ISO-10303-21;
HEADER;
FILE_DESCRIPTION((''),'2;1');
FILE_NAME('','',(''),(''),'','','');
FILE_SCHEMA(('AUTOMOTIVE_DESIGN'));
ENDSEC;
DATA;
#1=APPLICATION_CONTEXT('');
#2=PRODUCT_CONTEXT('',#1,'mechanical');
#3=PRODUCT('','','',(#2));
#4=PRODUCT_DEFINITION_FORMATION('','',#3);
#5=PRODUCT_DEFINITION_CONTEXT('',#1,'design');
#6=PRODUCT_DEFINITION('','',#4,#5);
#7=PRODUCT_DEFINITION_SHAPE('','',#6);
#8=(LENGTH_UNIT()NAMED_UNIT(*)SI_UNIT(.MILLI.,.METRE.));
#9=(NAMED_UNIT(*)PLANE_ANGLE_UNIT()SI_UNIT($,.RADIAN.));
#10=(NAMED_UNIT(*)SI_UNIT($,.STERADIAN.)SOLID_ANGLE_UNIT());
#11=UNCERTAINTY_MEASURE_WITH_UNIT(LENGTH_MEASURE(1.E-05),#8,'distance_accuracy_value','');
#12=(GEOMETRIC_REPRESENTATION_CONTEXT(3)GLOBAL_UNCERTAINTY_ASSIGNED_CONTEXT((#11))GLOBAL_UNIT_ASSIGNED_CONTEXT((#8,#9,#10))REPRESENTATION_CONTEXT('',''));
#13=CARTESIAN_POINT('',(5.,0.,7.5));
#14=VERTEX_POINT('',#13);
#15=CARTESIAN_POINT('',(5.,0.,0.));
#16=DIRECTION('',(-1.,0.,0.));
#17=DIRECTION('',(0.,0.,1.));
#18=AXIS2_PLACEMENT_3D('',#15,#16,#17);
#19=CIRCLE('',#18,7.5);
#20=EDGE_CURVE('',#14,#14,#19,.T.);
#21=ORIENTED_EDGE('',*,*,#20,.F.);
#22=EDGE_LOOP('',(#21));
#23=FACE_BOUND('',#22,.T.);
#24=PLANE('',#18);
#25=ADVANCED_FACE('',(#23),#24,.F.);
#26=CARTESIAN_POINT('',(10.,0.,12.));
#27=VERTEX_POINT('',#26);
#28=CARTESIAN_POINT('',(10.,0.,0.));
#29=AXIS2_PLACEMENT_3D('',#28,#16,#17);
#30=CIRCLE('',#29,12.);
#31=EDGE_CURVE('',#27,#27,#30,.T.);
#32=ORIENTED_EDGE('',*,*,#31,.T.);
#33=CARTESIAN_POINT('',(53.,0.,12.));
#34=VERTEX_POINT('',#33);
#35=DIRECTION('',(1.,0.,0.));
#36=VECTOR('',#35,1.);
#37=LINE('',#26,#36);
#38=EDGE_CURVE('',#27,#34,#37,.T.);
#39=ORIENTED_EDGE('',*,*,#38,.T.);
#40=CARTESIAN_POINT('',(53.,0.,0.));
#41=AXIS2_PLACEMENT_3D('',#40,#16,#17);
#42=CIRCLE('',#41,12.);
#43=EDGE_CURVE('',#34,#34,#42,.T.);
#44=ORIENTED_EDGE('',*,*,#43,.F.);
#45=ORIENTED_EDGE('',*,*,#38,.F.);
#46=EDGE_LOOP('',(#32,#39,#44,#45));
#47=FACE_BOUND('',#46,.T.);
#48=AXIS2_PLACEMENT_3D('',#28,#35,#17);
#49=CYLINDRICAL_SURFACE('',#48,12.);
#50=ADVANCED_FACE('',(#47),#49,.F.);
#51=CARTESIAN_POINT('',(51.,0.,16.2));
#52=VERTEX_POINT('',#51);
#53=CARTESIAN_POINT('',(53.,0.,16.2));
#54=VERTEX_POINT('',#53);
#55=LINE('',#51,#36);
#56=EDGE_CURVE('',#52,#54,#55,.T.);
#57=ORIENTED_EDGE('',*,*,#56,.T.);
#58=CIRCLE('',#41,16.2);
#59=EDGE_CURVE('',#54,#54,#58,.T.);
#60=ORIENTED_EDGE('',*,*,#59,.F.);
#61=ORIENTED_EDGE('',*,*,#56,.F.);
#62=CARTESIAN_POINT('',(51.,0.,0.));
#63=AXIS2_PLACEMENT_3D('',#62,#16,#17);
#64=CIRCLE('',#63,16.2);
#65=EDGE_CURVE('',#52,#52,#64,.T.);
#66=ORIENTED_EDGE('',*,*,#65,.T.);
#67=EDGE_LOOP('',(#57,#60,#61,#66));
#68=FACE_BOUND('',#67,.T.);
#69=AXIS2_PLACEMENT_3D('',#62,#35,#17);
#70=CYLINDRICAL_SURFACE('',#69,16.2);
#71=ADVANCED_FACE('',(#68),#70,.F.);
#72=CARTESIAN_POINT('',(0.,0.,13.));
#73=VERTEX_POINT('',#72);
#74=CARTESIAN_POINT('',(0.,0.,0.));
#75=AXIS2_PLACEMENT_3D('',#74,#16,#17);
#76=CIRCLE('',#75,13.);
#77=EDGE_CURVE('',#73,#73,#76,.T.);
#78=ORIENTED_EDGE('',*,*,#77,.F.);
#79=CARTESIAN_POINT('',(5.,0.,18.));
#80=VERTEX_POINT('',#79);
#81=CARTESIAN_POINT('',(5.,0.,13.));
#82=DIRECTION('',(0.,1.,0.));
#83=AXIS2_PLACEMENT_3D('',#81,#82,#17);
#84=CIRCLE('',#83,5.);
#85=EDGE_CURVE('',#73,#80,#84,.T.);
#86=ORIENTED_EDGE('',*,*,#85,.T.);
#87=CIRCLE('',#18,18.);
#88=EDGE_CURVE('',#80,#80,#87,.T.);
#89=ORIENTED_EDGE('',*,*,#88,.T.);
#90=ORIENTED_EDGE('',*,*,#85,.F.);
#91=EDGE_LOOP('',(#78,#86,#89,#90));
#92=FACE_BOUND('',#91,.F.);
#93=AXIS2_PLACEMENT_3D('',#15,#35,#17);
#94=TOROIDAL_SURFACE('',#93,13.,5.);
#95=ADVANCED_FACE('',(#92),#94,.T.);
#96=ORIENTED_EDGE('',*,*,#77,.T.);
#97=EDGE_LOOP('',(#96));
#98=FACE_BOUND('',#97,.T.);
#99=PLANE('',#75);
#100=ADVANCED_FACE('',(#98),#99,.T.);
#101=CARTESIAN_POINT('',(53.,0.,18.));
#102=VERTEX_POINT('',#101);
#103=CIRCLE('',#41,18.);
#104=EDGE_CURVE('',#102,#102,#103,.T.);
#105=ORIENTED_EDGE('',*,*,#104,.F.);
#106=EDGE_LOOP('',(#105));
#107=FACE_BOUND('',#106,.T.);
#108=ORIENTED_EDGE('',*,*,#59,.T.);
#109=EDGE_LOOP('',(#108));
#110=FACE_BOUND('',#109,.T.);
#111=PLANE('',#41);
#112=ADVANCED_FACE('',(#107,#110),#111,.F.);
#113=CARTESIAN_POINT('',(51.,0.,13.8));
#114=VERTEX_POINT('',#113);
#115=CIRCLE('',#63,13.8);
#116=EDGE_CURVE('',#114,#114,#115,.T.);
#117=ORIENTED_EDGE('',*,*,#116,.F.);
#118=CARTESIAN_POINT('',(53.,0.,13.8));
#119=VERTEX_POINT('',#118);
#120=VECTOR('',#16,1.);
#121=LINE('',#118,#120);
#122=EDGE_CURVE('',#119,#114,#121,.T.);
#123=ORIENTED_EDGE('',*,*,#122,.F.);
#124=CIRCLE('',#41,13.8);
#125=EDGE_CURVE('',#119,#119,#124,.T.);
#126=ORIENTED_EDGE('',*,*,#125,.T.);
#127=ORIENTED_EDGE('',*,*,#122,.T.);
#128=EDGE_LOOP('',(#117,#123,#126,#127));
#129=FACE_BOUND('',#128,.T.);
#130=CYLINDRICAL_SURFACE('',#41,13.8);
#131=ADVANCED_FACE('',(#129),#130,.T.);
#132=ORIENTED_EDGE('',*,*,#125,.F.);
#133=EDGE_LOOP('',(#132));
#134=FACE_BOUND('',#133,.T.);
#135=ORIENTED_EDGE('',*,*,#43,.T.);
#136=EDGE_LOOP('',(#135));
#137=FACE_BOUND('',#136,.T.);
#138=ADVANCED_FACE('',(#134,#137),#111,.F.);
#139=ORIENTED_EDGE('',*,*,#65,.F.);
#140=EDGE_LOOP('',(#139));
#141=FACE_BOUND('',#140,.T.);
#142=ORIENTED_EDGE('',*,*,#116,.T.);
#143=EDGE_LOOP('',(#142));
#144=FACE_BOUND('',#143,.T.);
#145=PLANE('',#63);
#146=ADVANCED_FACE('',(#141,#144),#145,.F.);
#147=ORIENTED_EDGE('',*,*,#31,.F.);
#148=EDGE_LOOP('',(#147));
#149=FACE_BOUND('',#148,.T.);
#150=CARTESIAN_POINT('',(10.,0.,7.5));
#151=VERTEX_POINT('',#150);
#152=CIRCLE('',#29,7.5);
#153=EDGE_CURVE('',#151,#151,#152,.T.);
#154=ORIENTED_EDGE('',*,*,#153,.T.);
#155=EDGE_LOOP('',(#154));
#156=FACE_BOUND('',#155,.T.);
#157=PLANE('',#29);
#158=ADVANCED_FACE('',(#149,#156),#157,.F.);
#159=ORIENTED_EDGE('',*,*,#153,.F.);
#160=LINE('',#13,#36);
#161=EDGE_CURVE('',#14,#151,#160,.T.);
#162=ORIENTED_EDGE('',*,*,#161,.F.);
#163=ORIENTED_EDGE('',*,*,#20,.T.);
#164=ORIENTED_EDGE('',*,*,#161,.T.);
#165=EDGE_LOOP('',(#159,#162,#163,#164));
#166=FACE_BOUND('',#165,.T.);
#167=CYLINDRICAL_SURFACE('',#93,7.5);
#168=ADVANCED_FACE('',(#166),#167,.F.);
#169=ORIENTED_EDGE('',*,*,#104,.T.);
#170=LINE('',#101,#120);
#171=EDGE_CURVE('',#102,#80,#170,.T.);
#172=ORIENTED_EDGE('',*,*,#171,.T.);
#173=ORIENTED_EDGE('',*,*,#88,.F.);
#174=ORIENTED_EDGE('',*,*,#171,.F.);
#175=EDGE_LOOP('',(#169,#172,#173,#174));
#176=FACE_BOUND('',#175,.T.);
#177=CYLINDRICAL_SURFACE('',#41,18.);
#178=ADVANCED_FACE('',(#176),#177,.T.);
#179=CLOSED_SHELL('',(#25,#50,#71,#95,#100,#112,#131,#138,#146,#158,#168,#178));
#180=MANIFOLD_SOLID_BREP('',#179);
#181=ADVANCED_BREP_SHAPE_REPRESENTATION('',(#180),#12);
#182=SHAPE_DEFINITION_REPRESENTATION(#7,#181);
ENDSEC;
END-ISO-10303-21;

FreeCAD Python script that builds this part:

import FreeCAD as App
import Part
import Sketcher
Q = App.Units.Quantity


def edges_at(feature, points):
    """Names of the edges that pass closest to the given points."""
    edges = feature.Shape.Edges
    near = lambda p: min(range(len(edges)), key=lambda i: edges[i].distToShape(Part.Vertex(*p))[0])
    return sorted({f"Edge{near(p) + 1}" for p in points})


def add_polygon(sketch, points):
    """Adds a closed chain of lines whose ends are joined by coincident constraints."""
    first, n = sketch.GeometryCount, len(points)
    for a, b in zip(points, points[1:] + points[:1]):
        sketch.addGeometry(Part.LineSegment(App.Vector(*a, 0), App.Vector(*b, 0)), False)
    for i in range(n):
        sketch.addConstraint(Sketcher.Constraint("Coincident", first + i, 2, first + (i + 1) % n, 1))

doc = App.newDocument("Part")
params = doc.addObject("Spreadsheet::Sheet", "Params")
for row, (alias, value) in enumerate([
    ("sketch1_width", "5 mm"),
    ("sketch1_width2", "43 mm"),
    ("sketch1_width3", "2 mm"),
    ("sketch1_height", "18 mm"),
    ("sketch1_height2", "7.5 mm"),
    ("revolution_angle", "360 deg"),
    ("fillet_radius", "5 mm"),
], start=1):
    params.set(f"A{row}", alias)
    params.set(f"B{row}", "=" + value)
    params.setAlias(f"B{row}", alias)

body = doc.addObject("PartDesign::Body", "Body")

# Sketch on XZ plane
sketch1 = body.newObject("Sketcher::SketchObject", "Sketch")
sketch1.AttachmentSupport = (doc.getObject("XZ_Plane"), [""])
sketch1.MapMode = "FlatFace"
add_polygon(sketch1, [(0, 18), (0, 0), (5, 0), (5, 7.5), (10, 7.5), (10, 12), (53, 12), (53, 13.8), (51, 13.8), (51, 16.2), (53, 16.2), (53, 18)])  # lines 0-11
sketch1.addConstraint([
    Sketcher.Constraint("Vertical", 0),
    Sketcher.Constraint("Horizontal", 1),
    Sketcher.Constraint("Vertical", 2),
    Sketcher.Constraint("Horizontal", 3),
    Sketcher.Constraint("Vertical", 4),
    Sketcher.Constraint("Horizontal", 5),
    Sketcher.Constraint("Vertical", 6),
    Sketcher.Constraint("Horizontal", 7),
    Sketcher.Constraint("Vertical", 8),
    Sketcher.Constraint("Horizontal", 9),
    Sketcher.Constraint("Vertical", 10),
    Sketcher.Constraint("Horizontal", 11),
    Sketcher.Constraint("Coincident", 0, 2, -1, 1),
    Sketcher.Constraint("Vertical", 6, 2, 9, 2),
    Sketcher.Constraint("Equal", 1, 3),
    Sketcher.Constraint("Equal", 6, 10),
    Sketcher.Constraint("DistanceX", 1, 1, 1, 2, Q("5 mm")),
    Sketcher.Constraint("DistanceX", 5, 1, 5, 2, Q("43 mm")),
    Sketcher.Constraint("DistanceX", 7, 2, 7, 1, Q("2 mm")),
    Sketcher.Constraint("DistanceY", 0, 2, 0, 1, Q("18 mm")),
    Sketcher.Constraint("DistanceY", 2, 1, 2, 2, Q("7.5 mm")),
    Sketcher.Constraint("DistanceY", 4, 1, 4, 2, Q("4.5 mm")),
    Sketcher.Constraint("DistanceY", 6, 1, 6, 2, Q("1.8 mm")),
])
sketch1.setExpression("Constraints[28]", "Params.sketch1_width")
sketch1.setExpression("Constraints[29]", "Params.sketch1_width2")
sketch1.setExpression("Constraints[30]", "Params.sketch1_width3")
sketch1.setExpression("Constraints[31]", "Params.sketch1_height")
sketch1.setExpression("Constraints[32]", "Params.sketch1_height2")
revolution = body.newObject("PartDesign::Revolution", "Revolution")
revolution.Profile = sketch1
revolution.ReferenceAxis = (sketch1, ["H_Axis"])
revolution.setExpression("Angle", "Params.revolution_angle")
doc.recompute()

fillet = body.newObject("PartDesign::Fillet", "Fillet")
fillet.Base = (revolution, edges_at(revolution, [(0, 0, -18)]))
fillet.setExpression("Radius", "Params.fillet_radius")

doc.recompute()
